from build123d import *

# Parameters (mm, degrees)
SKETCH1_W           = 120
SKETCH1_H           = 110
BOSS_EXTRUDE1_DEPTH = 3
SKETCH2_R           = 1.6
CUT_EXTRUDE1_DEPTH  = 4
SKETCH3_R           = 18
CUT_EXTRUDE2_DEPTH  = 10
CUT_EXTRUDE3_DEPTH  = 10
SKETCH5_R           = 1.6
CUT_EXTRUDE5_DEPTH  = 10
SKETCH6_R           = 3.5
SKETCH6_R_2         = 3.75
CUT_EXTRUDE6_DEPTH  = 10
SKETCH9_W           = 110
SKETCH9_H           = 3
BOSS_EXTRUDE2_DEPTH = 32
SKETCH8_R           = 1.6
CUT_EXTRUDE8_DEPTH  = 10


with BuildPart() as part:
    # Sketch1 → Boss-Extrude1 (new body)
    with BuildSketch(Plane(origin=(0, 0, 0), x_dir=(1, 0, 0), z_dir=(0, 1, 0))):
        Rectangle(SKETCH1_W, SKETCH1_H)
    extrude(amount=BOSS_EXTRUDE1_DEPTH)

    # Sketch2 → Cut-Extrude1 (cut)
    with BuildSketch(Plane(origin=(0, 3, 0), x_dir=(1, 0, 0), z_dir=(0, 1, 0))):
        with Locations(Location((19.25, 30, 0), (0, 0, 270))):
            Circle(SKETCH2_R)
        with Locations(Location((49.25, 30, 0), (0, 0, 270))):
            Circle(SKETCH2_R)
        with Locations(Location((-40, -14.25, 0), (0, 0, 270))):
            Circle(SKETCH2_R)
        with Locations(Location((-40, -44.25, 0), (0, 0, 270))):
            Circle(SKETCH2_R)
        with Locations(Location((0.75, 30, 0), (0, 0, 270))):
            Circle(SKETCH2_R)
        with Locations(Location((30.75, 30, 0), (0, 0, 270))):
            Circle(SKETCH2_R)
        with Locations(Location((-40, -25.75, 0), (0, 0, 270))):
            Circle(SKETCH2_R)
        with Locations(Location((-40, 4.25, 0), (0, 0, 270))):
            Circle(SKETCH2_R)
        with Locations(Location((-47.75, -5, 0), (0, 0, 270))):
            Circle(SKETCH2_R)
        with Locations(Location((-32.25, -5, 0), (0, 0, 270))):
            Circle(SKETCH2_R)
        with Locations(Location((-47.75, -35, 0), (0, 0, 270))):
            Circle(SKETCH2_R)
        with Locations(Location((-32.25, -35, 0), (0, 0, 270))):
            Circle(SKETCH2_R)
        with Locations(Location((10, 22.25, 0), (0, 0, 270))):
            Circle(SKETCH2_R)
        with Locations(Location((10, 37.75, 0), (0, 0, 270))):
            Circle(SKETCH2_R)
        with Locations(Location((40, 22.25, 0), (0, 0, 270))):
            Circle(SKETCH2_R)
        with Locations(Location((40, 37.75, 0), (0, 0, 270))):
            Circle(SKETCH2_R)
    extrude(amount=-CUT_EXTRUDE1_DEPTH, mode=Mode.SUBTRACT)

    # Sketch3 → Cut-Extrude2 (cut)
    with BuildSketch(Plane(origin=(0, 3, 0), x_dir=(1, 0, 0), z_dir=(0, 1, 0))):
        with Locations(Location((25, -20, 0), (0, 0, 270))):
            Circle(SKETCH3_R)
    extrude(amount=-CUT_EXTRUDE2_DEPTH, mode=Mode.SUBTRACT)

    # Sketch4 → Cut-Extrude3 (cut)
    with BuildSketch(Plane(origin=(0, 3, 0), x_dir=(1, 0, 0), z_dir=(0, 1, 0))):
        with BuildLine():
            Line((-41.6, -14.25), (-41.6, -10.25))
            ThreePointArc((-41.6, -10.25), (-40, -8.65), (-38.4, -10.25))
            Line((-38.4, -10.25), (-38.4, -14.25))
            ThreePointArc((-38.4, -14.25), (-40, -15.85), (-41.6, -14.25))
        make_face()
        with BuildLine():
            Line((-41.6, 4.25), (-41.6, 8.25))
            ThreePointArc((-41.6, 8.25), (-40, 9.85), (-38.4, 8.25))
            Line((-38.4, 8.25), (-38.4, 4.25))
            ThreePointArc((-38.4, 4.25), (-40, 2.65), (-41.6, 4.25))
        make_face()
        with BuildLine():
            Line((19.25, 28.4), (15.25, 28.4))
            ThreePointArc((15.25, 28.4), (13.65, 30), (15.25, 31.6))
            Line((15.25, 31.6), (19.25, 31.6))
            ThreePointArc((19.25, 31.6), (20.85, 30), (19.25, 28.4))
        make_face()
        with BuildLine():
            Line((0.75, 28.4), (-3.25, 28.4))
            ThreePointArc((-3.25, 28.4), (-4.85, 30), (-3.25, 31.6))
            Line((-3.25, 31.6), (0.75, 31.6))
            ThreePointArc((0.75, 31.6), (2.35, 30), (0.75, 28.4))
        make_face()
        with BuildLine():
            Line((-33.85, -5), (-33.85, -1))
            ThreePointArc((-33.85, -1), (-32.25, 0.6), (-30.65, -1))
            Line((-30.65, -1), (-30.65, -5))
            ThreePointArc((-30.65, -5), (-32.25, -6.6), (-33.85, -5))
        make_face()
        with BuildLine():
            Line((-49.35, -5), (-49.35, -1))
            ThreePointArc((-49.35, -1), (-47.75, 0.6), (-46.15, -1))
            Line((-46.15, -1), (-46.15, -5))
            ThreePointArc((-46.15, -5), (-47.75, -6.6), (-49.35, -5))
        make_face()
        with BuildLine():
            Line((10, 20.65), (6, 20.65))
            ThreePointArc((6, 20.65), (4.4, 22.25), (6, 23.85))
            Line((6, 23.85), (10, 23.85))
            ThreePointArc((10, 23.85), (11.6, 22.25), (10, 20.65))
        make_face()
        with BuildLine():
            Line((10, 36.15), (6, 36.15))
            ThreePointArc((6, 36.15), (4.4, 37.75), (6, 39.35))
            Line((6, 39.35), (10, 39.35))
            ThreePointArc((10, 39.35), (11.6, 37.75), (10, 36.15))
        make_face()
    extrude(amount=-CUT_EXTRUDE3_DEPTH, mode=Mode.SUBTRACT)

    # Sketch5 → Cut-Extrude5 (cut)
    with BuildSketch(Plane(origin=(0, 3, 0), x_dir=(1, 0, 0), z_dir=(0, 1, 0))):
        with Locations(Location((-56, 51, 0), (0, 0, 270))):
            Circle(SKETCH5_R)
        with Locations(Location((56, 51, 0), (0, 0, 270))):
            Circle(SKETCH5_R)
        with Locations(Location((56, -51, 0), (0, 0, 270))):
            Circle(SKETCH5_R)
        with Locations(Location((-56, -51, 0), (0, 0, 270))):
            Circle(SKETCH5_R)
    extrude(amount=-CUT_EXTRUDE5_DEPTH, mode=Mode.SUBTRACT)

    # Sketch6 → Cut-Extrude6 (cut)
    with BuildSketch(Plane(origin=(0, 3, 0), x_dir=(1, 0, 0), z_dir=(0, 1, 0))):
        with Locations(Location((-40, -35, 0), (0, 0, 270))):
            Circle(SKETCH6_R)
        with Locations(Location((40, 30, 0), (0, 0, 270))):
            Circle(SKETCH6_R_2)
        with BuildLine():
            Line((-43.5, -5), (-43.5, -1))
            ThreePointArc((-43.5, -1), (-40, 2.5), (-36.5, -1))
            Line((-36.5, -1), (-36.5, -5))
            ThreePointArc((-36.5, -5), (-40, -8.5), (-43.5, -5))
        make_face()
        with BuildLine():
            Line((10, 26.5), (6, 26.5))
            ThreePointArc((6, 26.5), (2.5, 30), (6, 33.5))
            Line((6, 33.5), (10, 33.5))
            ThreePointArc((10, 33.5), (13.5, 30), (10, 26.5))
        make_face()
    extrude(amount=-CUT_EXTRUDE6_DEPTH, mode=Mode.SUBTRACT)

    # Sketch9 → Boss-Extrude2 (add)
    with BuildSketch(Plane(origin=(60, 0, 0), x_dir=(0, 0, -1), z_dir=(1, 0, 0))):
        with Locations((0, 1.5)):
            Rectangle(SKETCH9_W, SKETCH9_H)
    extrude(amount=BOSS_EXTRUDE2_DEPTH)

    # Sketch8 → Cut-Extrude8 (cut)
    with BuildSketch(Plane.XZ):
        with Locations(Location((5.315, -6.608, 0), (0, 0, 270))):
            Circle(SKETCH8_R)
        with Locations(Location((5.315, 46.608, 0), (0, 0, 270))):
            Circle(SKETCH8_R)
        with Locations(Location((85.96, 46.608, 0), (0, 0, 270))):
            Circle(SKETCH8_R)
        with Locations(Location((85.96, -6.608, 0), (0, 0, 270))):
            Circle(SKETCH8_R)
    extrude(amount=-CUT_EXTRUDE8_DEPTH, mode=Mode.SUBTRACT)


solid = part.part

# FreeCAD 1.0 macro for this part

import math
import FreeCAD as App
import Part
import Sketcher

V = App.Vector

doc = App.newDocument("Part")
params = doc.addObject("Spreadsheet::Sheet", "Params")
for row, (alias, value) in enumerate([
    ("sketch1_width", "120 mm"),
    ("sketch1_height", "110 mm"),
    ("pad1_length", "3 mm"),
    ("sketch2_diameter", "3.2 mm"),
    ("pocket1_length", "4 mm"),
    ("sketch3_diameter", "36 mm"),
    ("pocket2_length", "10 mm"),
    ("sketch4_radius", "1.6 mm"),
    ("sketch4_width", "4 mm"),
    ("pocket3_length", "10 mm"),
    ("sketch5_diameter", "3.2 mm"),
    ("pocket4_length", "10 mm"),
    ("sketch6_diameter", "7 mm"),
    ("sketch6_diameter2", "7.5 mm"),
    ("sketch6_width", "4 mm"),
    ("pocket5_length", "10 mm"),
    ("sketch7_width", "3 mm"),
    ("sketch7_height", "110 mm"),
    ("pad2_length", "32 mm"),
    ("sketch8_diameter", "3.2 mm"),
    ("pocket6_length", "10 mm"),
], start=1):
    params.set(f"A{row}", alias)
    params.set(f"B{row}", "=" + value)
    params.setAlias(f"B{row}", alias)

body = doc.addObject("PartDesign::Body", "Body")

# Sketch on XZ plane
sketch1 = body.newObject("Sketcher::SketchObject", "Sketch")
sketch1.AttachmentSupport = (doc.getObject("XZ_Plane"), [""])
sketch1.MapMode = "FlatFace"
sketch1.addGeometry([
    Part.LineSegment(V(-60, -55, 0), V(-60, 55, 0)),
    Part.LineSegment(V(-60, 55, 0), V(60, 55, 0)),
    Part.LineSegment(V(60, 55, 0), V(60, -55, 0)),
    Part.LineSegment(V(60, -55, 0), V(-60, -55, 0)),
], False)
sketch1.addConstraint([
    Sketcher.Constraint("Coincident", 0, 2, 1, 1),
    Sketcher.Constraint("Coincident", 1, 2, 2, 1),
    Sketcher.Constraint("Coincident", 2, 2, 3, 1),
    Sketcher.Constraint("Coincident", 3, 2, 0, 1),
    Sketcher.Constraint("Vertical", 0),
    Sketcher.Constraint("Horizontal", 1),
    Sketcher.Constraint("Vertical", 2),
    Sketcher.Constraint("Horizontal", 3),
    Sketcher.Constraint("Symmetric", 0, 2, 2, 2, -1, 1),
    Sketcher.Constraint("DistanceX", 1, 1, 1, 2, 120.0),
    Sketcher.Constraint("DistanceY", 0, 1, 0, 2, 110.0),
])
sketch1.setExpression("Constraints[9]", "Params.sketch1_width")
sketch1.setExpression("Constraints[10]", "Params.sketch1_height")
pad1 = body.newObject("PartDesign::Pad", "Pad")
pad1.Profile = sketch1
pad1.setExpression("Length", "Params.pad1_length")
pad1.Reversed = True

# Sketch on XZ plane
sketch2 = body.newObject("Sketcher::SketchObject", "Sketch001")
sketch2.AttachmentSupport = (doc.getObject("XZ_Plane"), [""])
sketch2.MapMode = "FlatFace"
sketch2.AttachmentOffset = App.Placement(V(0, 0, -3), App.Rotation())
sketch2.addGeometry([
    Part.Circle(V(19.2, -30, 0), V(0, 0, 1), 1.6),  # 0
    Part.Circle(V(49.2, -30, 0), V(0, 0, 1), 1.6),  # 1
    Part.Circle(V(-40, 14.2, 0), V(0, 0, 1), 1.6),  # 2
    Part.Circle(V(-40, 44.2, 0), V(0, 0, 1), 1.6),  # 3
    Part.Circle(V(0.8, -30, 0), V(0, 0, 1), 1.6),  # 4
    Part.Circle(V(30.8, -30, 0), V(0, 0, 1), 1.6),  # 5
    Part.Circle(V(-40, 25.8, 0), V(0, 0, 1), 1.6),  # 6
    Part.Circle(V(-40, -4.2, 0), V(0, 0, 1), 1.6),  # 7
    Part.Circle(V(-47.8, 5, 0), V(0, 0, 1), 1.6),  # 8
    Part.Circle(V(-32.2, 5, 0), V(0, 0, 1), 1.6),  # 9
    Part.Circle(V(-47.8, 35, 0), V(0, 0, 1), 1.6),  # 10
    Part.Circle(V(-32.2, 35, 0), V(0, 0, 1), 1.6),  # 11
    Part.Circle(V(10, -22.2, 0), V(0, 0, 1), 1.6),  # 12
    Part.Circle(V(10, -37.8, 0), V(0, 0, 1), 1.6),  # 13
    Part.Circle(V(40, -22.2, 0), V(0, 0, 1), 1.6),  # 14
    Part.Circle(V(40, -37.8, 0), V(0, 0, 1), 1.6),  # 15
], False)
sketch2.addConstraint([
    Sketcher.Constraint("Equal", 0, 1),
    Sketcher.Constraint("Equal", 1, 2),
    Sketcher.Constraint("Equal", 2, 3),
    Sketcher.Constraint("Equal", 3, 4),
    Sketcher.Constraint("Equal", 4, 5),
    Sketcher.Constraint("Equal", 5, 6),
    Sketcher.Constraint("Equal", 6, 7),
    Sketcher.Constraint("Equal", 7, 8),
    Sketcher.Constraint("Equal", 8, 9),
    Sketcher.Constraint("Equal", 9, 10),
    Sketcher.Constraint("Equal", 10, 11),
    Sketcher.Constraint("Equal", 11, 12),
    Sketcher.Constraint("Equal", 12, 13),
    Sketcher.Constraint("Equal", 13, 14),
    Sketcher.Constraint("Equal", 14, 15),
    Sketcher.Constraint("Horizontal", 0, 3, 1, 3),
    Sketcher.Constraint("Horizontal", 1, 3, 4, 3),
    Sketcher.Constraint("Horizontal", 4, 3, 5, 3),
    Sketcher.Constraint("Horizontal", 8, 3, 9, 3),
    Sketcher.Constraint("Horizontal", 10, 3, 11, 3),
    Sketcher.Constraint("Horizontal", 12, 3, 14, 3),
    Sketcher.Constraint("Horizontal", 13, 3, 15, 3),
    Sketcher.Constraint("Vertical", 2, 3, 3, 3),
    Sketcher.Constraint("Vertical", 3, 3, 6, 3),
    Sketcher.Constraint("Vertical", 6, 3, 7, 3),
    Sketcher.Constraint("Vertical", 8, 3, 10, 3),
    Sketcher.Constraint("Vertical", 9, 3, 11, 3),
    Sketcher.Constraint("Vertical", 12, 3, 13, 3),
    Sketcher.Constraint("Vertical", 14, 3, 15, 3),
    Sketcher.Constraint("Diameter", 0, 3.2),
    Sketcher.Constraint("DistanceY", 0, 3, -1, 1, 30.0),
    Sketcher.Constraint("DistanceX", 2, 3, -1, 1, 40.0),
    Sketcher.Constraint("DistanceY", -1, 1, 8, 3, 5.0),
    Sketcher.Constraint("DistanceY", -1, 1, 10, 3, 35.0),
    Sketcher.Constraint("DistanceX", -1, 1, 12, 3, 10.0),
    Sketcher.Constraint("DistanceX", -1, 1, 14, 3, 40.0),
    Sketcher.Constraint("DistanceX", 0, 3, 1, 3, 30.0),
    Sketcher.Constraint("DistanceY", 2, 3, 3, 3, 30.0),
    Sketcher.Constraint("DistanceX", 4, 3, 5, 3, 30.0),
    Sketcher.Constraint("DistanceY", 7, 3, 6, 3, 30.0),
    Sketcher.Constraint("DistanceX", 4, 3, 0, 3, 18.5),
    Sketcher.Constraint("DistanceY", 2, 3, 6, 3, 11.5),
    Sketcher.Constraint("DistanceX", 8, 3, 4, 3, 48.5),
    Sketcher.Constraint("DistanceX", 8, 3, 9, 3, 15.5),
    Sketcher.Constraint("DistanceY", 13, 3, 12, 3, 15.5),
    Sketcher.Constraint("DistanceX", -1, 1, 0, 3, 19.25),
    Sketcher.Constraint("DistanceY", -1, 1, 2, 3, 14.25),
    Sketcher.Constraint("DistanceY", 12, 3, -1, 1, 22.25),
])
sketch2.setExpression("Constraints[29]", "Params.sketch2_diameter")
pocket1 = body.newObject("PartDesign::Pocket", "Pocket")
pocket1.Profile = sketch2
pocket1.setExpression("Length", "Params.pocket1_length")
pocket1.Reversed = True

# Sketch on XZ plane
sketch3 = body.newObject("Sketcher::SketchObject", "Sketch002")
sketch3.AttachmentSupport = (doc.getObject("XZ_Plane"), [""])
sketch3.MapMode = "FlatFace"
sketch3.AttachmentOffset = App.Placement(V(0, 0, -3), App.Rotation())
sketch3.addGeometry(Part.Circle(V(25, 20, 0), V(0, 0, 1), 18), False)
sketch3.addConstraint([
    Sketcher.Constraint("Diameter", 0, 36.0),
    Sketcher.Constraint("DistanceX", -1, 1, 0, 3, 25.0),
    Sketcher.Constraint("DistanceY", -1, 1, 0, 3, 20.0),
])
sketch3.setExpression("Constraints[0]", "Params.sketch3_diameter")
pocket2 = body.newObject("PartDesign::Pocket", "Pocket001")
pocket2.Profile = sketch3
pocket2.setExpression("Length", "Params.pocket2_length")
pocket2.Reversed = True

# Sketch on XZ plane
sketch4 = body.newObject("Sketcher::SketchObject", "Sketch003")
sketch4.AttachmentSupport = (doc.getObject("XZ_Plane"), [""])
sketch4.MapMode = "FlatFace"
sketch4.AttachmentOffset = App.Placement(V(0, 0, -3), App.Rotation())
sketch4.addGeometry([
    Part.LineSegment(V(-41.6, 10.2, 0), V(-41.6, 14.2, 0)),  # 0
    Part.ArcOfCircle(Part.Circle(V(-40, 14.2, 0), V(0, 0, 1), 1.6), math.radians(0), math.radians(180)),  # 1
    Part.LineSegment(V(-38.4, 14.2, 0), V(-38.4, 10.2, 0)),  # 2
    Part.ArcOfCircle(Part.Circle(V(-40, 10.2, 0), V(0, 0, 1), 1.6), math.radians(180), math.radians(360)),  # 3
    Part.LineSegment(V(-41.6, -8.2, 0), V(-41.6, -4.2, 0)),  # 4
    Part.ArcOfCircle(Part.Circle(V(-40, -4.2, 0), V(0, 0, 1), 1.6), math.radians(0), math.radians(180)),  # 5
    Part.LineSegment(V(-38.4, -4.2, 0), V(-38.4, -8.2, 0)),  # 6
    Part.ArcOfCircle(Part.Circle(V(-40, -8.2, 0), V(0, 0, 1), 1.6), math.radians(180), math.radians(360)),  # 7
    Part.LineSegment(V(15.2, -28.4, 0), V(19.2, -28.4, 0)),  # 8
    Part.ArcOfCircle(Part.Circle(V(19.2, -30, 0), V(0, 0, 1), 1.6), math.radians(-90), math.radians(90)),  # 9
    Part.LineSegment(V(19.2, -31.6, 0), V(15.2, -31.6, 0)),  # 10
    Part.ArcOfCircle(Part.Circle(V(15.2, -30, 0), V(0, 0, 1), 1.6), math.radians(90), math.radians(270)),  # 11
    Part.LineSegment(V(-3.2, -28.4, 0), V(0.8, -28.4, 0)),  # 12
    Part.ArcOfCircle(Part.Circle(V(0.8, -30, 0), V(0, 0, 1), 1.6), math.radians(-90), math.radians(90)),  # 13
    Part.LineSegment(V(0.8, -31.6, 0), V(-3.2, -31.6, 0)),  # 14
    Part.ArcOfCircle(Part.Circle(V(-3.2, -30, 0), V(0, 0, 1), 1.6), math.radians(90), math.radians(270)),  # 15
    Part.LineSegment(V(-33.9, 1, 0), V(-33.9, 5, 0)),  # 16
    Part.ArcOfCircle(Part.Circle(V(-32.2, 5, 0), V(0, 0, 1), 1.6), math.radians(0), math.radians(180)),  # 17
    Part.LineSegment(V(-30.6, 5, 0), V(-30.6, 1, 0)),  # 18
    Part.ArcOfCircle(Part.Circle(V(-32.2, 1, 0), V(0, 0, 1), 1.6), math.radians(180), math.radians(360)),  # 19
    Part.LineSegment(V(-49.4, 1, 0), V(-49.4, 5, 0)),  # 20
    Part.ArcOfCircle(Part.Circle(V(-47.8, 5, 0), V(0, 0, 1), 1.6), math.radians(0), math.radians(180)),  # 21
    Part.LineSegment(V(-46.1, 5, 0), V(-46.1, 1, 0)),  # 22
    Part.ArcOfCircle(Part.Circle(V(-47.8, 1, 0), V(0, 0, 1), 1.6), math.radians(180), math.radians(360)),  # 23
    Part.LineSegment(V(6, -20.6, 0), V(10, -20.6, 0)),  # 24
    Part.ArcOfCircle(Part.Circle(V(10, -22.2, 0), V(0, 0, 1), 1.6), math.radians(-90), math.radians(90)),  # 25
    Part.LineSegment(V(10, -23.9, 0), V(6, -23.9, 0)),  # 26
    Part.ArcOfCircle(Part.Circle(V(6, -22.2, 0), V(0, 0, 1), 1.6), math.radians(90), math.radians(270)),  # 27
    Part.LineSegment(V(6, -36.1, 0), V(10, -36.1, 0)),  # 28
    Part.ArcOfCircle(Part.Circle(V(10, -37.8, 0), V(0, 0, 1), 1.6), math.radians(-90), math.radians(90)),  # 29
    Part.LineSegment(V(10, -39.4, 0), V(6, -39.4, 0)),  # 30
    Part.ArcOfCircle(Part.Circle(V(6, -37.8, 0), V(0, 0, 1), 1.6), math.radians(90), math.radians(270)),  # 31
], False)
sketch4.addConstraint([
    Sketcher.Constraint("Tangent", 0, 2, 1, 2),
    Sketcher.Constraint("Tangent", 1, 1, 2, 1),
    Sketcher.Constraint("Tangent", 2, 2, 3, 2),
    Sketcher.Constraint("Tangent", 3, 1, 0, 1),
    Sketcher.Constraint("Tangent", 4, 2, 5, 2),
    Sketcher.Constraint("Tangent", 5, 1, 6, 1),
    Sketcher.Constraint("Tangent", 6, 2, 7, 2),
    Sketcher.Constraint("Tangent", 7, 1, 4, 1),
    Sketcher.Constraint("Tangent", 8, 2, 9, 2),
    Sketcher.Constraint("Tangent", 9, 1, 10, 1),
    Sketcher.Constraint("Tangent", 10, 2, 11, 2),
    Sketcher.Constraint("Tangent", 11, 1, 8, 1),
    Sketcher.Constraint("Tangent", 12, 2, 13, 2),
    Sketcher.Constraint("Tangent", 13, 1, 14, 1),
    Sketcher.Constraint("Tangent", 14, 2, 15, 2),
    Sketcher.Constraint("Tangent", 15, 1, 12, 1),
    Sketcher.Constraint("Tangent", 16, 2, 17, 2),
    Sketcher.Constraint("Tangent", 17, 1, 18, 1),
    Sketcher.Constraint("Tangent", 18, 2, 19, 2),
    Sketcher.Constraint("Tangent", 19, 1, 16, 1),
    Sketcher.Constraint("Tangent", 20, 2, 21, 2),
    Sketcher.Constraint("Tangent", 21, 1, 22, 1),
    Sketcher.Constraint("Tangent", 22, 2, 23, 2),
    Sketcher.Constraint("Tangent", 23, 1, 20, 1),
    Sketcher.Constraint("Tangent", 24, 2, 25, 2),
    Sketcher.Constraint("Tangent", 25, 1, 26, 1),
    Sketcher.Constraint("Tangent", 26, 2, 27, 2),
    Sketcher.Constraint("Tangent", 27, 1, 24, 1),
    Sketcher.Constraint("Tangent", 28, 2, 29, 2),
    Sketcher.Constraint("Tangent", 29, 1, 30, 1),
    Sketcher.Constraint("Tangent", 30, 2, 31, 2),
    Sketcher.Constraint("Tangent", 31, 1, 28, 1),
    Sketcher.Constraint("Vertical", 0),
    Sketcher.Constraint("Vertical", 2),
    Sketcher.Constraint("Vertical", 4),
    Sketcher.Constraint("Vertical", 6),
    Sketcher.Constraint("Horizontal", 8),
    Sketcher.Constraint("Horizontal", 10),
    Sketcher.Constraint("Horizontal", 12),
    Sketcher.Constraint("Horizontal", 14),
    Sketcher.Constraint("Vertical", 16),
    Sketcher.Constraint("Vertical", 18),
    Sketcher.Constraint("Vertical", 20),
    Sketcher.Constraint("Vertical", 22),
    Sketcher.Constraint("Horizontal", 24),
    Sketcher.Constraint("Horizontal", 26),
    Sketcher.Constraint("Horizontal", 28),
    Sketcher.Constraint("Horizontal", 30),
    Sketcher.Constraint("Equal", 3, 5),
    Sketcher.Constraint("Equal", 7, 9),
    Sketcher.Constraint("Equal", 11, 13),
    Sketcher.Constraint("Equal", 15, 17),
    Sketcher.Constraint("Equal", 19, 21),
    Sketcher.Constraint("Equal", 23, 25),
    Sketcher.Constraint("Equal", 27, 29),
    Sketcher.Constraint("Horizontal", 11, 3, 13, 3),
    Sketcher.Constraint("Horizontal", 17, 3, 21, 3),
    Sketcher.Constraint("Horizontal", 19, 3, 23, 3),
    Sketcher.Constraint("Vertical", 3, 3, 5, 3),
    Sketcher.Constraint("Vertical", 25, 3, 29, 3),
    Sketcher.Constraint("Vertical", 27, 3, 31, 3),
    Sketcher.Constraint("Equal", 10, 12),
    Sketcher.Constraint("Equal", 14, 24),
    Sketcher.Constraint("Equal", 30, 0),
    Sketcher.Constraint("Equal", 2, 4),
    Sketcher.Constraint("Equal", 6, 16),
    Sketcher.Constraint("Radius", 1, 1.6),
    Sketcher.Constraint("DistanceX", 8, 1, 8, 2, 4.0),
    Sketcher.Constraint("DistanceX", 1, 3, -1, 1, 40.0),
    Sketcher.Constraint("DistanceY", 9, 3, -1, 1, 30.0),
    Sketcher.Constraint("DistanceY", -1, 1, 17, 3, 5.0),
    Sketcher.Constraint("DistanceX", -1, 1, 25, 3, 10.0),
    Sketcher.Constraint("DistanceX", 17, 3, 15, 3, 29.0),
    Sketcher.Constraint("DistanceY", 5, 3, 3, 3, 14.5),
    Sketcher.Constraint("DistanceX", 13, 3, 11, 3, 14.5),
    Sketcher.Constraint("DistanceX", 21, 3, 17, 3, 15.5),
    Sketcher.Constraint("DistanceY", 29, 3, 25, 3, 15.5),
    Sketcher.Constraint("DistanceY", -1, 1, 1, 3, 14.25),
    Sketcher.Constraint("DistanceX", -1, 1, 9, 3, 19.25),
    Sketcher.Constraint("DistanceY", 25, 3, -1, 1, 22.25),
])
sketch4.setExpression("Constraints[66]", "Params.sketch4_radius")
sketch4.setExpression("Constraints[67]", "Params.sketch4_width")
pocket3 = body.newObject("PartDesign::Pocket", "Pocket002")
pocket3.Profile = sketch4
pocket3.setExpression("Length", "Params.pocket3_length")
pocket3.Reversed = True

# Sketch on XZ plane
sketch5 = body.newObject("Sketcher::SketchObject", "Sketch004")
sketch5.AttachmentSupport = (doc.getObject("XZ_Plane"), [""])
sketch5.MapMode = "FlatFace"
sketch5.AttachmentOffset = App.Placement(V(0, 0, -3), App.Rotation())
sketch5.addGeometry([
    Part.Circle(V(-56, -51, 0), V(0, 0, 1), 1.6),
    Part.Circle(V(56, -51, 0), V(0, 0, 1), 1.6),
    Part.Circle(V(56, 51, 0), V(0, 0, 1), 1.6),
    Part.Circle(V(-56, 51, 0), V(0, 0, 1), 1.6),
], False)
sketch5.addConstraint([
    Sketcher.Constraint("Equal", 0, 1),
    Sketcher.Constraint("Equal", 1, 2),
    Sketcher.Constraint("Equal", 2, 3),
    Sketcher.Constraint("Symmetric", 0, 3, 2, 3, -1, 1),
    Sketcher.Constraint("Symmetric", 1, 3, 3, 3, -1, 1),
    Sketcher.Constraint("Symmetric", 0, 3, 1, 3, -2),
    Sketcher.Constraint("Diameter", 0, 3.2),
    Sketcher.Constraint("DistanceX", 0, 3, -1, 1, 56.0),
    Sketcher.Constraint("DistanceY", 0, 3, -1, 1, 51.0),
])
sketch5.setExpression("Constraints[6]", "Params.sketch5_diameter")
pocket4 = body.newObject("PartDesign::Pocket", "Pocket003")
pocket4.Profile = sketch5
pocket4.setExpression("Length", "Params.pocket4_length")
pocket4.Reversed = True

# Sketch on XZ plane
sketch6 = body.newObject("Sketcher::SketchObject", "Sketch005")
sketch6.AttachmentSupport = (doc.getObject("XZ_Plane"), [""])
sketch6.MapMode = "FlatFace"
sketch6.AttachmentOffset = App.Placement(V(0, 0, -3), App.Rotation())
sketch6.addGeometry([
    Part.Circle(V(-40, 35, 0), V(0, 0, 1), 3.5),  # 0
    Part.Circle(V(40, -30, 0), V(0, 0, 1), 3.8),  # 1
    Part.LineSegment(V(-43.5, 1, 0), V(-43.5, 5, 0)),  # 2
    Part.ArcOfCircle(Part.Circle(V(-40, 5, 0), V(0, 0, 1), 3.5), math.radians(0), math.radians(180)),  # 3
    Part.LineSegment(V(-36.5, 5, 0), V(-36.5, 1, 0)),  # 4
    Part.ArcOfCircle(Part.Circle(V(-40, 1, 0), V(0, 0, 1), 3.5), math.radians(180), math.radians(360)),  # 5
    Part.LineSegment(V(6, -26.5, 0), V(10, -26.5, 0)),  # 6
    Part.ArcOfCircle(Part.Circle(V(10, -30, 0), V(0, 0, 1), 3.5), math.radians(-90), math.radians(90)),  # 7
    Part.LineSegment(V(10, -33.5, 0), V(6, -33.5, 0)),  # 8
    Part.ArcOfCircle(Part.Circle(V(6, -30, 0), V(0, 0, 1), 3.5), math.radians(90), math.radians(270)),  # 9
], False)
sketch6.addConstraint([
    Sketcher.Constraint("Tangent", 2, 2, 3, 2),
    Sketcher.Constraint("Tangent", 3, 1, 4, 1),
    Sketcher.Constraint("Tangent", 4, 2, 5, 2),
    Sketcher.Constraint("Tangent", 5, 1, 2, 1),
    Sketcher.Constraint("Tangent", 6, 2, 7, 2),
    Sketcher.Constraint("Tangent", 7, 1, 8, 1),
    Sketcher.Constraint("Tangent", 8, 2, 9, 2),
    Sketcher.Constraint("Tangent", 9, 1, 6, 1),
    Sketcher.Constraint("Vertical", 2),
    Sketcher.Constraint("Vertical", 4),
    Sketcher.Constraint("Horizontal", 6),
    Sketcher.Constraint("Horizontal", 8),
    Sketcher.Constraint("Equal", 0, 3),
    Sketcher.Constraint("Equal", 5, 7),
    Sketcher.Constraint("Horizontal", 1, 3, 7, 3),
    Sketcher.Constraint("Vertical", 0, 3, 3, 3),
    Sketcher.Constraint("Equal", 8, 2),
    Sketcher.Constraint("Diameter", 0, 7.0),
    Sketcher.Constraint("Diameter", 1, 7.5),
    Sketcher.Constraint("DistanceX", 6, 1, 6, 2, 4.0),
    Sketcher.Constraint("DistanceX", 0, 3, -1, 1, 40.0),
    Sketcher.Constraint("DistanceY", -1, 1, 0, 3, 35.0),
    Sketcher.Constraint("DistanceX", -1, 1, 1, 3, 40.0),
    Sketcher.Constraint("DistanceY", 1, 3, -1, 1, 30.0),
    Sketcher.Constraint("DistanceY", -1, 1, 3, 3, 5.0),
    Sketcher.Constraint("DistanceX", -1, 1, 7, 3, 10.0),
])
sketch6.setExpression("Constraints[17]", "Params.sketch6_diameter")
sketch6.setExpression("Constraints[18]", "Params.sketch6_diameter2")
sketch6.setExpression("Constraints[19]", "Params.sketch6_width")
pocket5 = body.newObject("PartDesign::Pocket", "Pocket004")
pocket5.Profile = sketch6
pocket5.setExpression("Length", "Params.pocket5_length")
pocket5.Reversed = True

# Sketch on YZ plane
sketch7 = body.newObject("Sketcher::SketchObject", "Sketch006")
sketch7.AttachmentSupport = (doc.getObject("YZ_Plane"), [""])
sketch7.MapMode = "FlatFace"
sketch7.AttachmentOffset = App.Placement(V(0, 0, 60), App.Rotation())
sketch7.addGeometry([
    Part.LineSegment(V(3, 55, 0), V(0, 55, 0)),
    Part.LineSegment(V(0, 55, 0), V(0, -55, 0)),
    Part.LineSegment(V(0, -55, 0), V(3, -55, 0)),
    Part.LineSegment(V(3, -55, 0), V(3, 55, 0)),
], False)
sketch7.addConstraint([
    Sketcher.Constraint("Coincident", 0, 2, 1, 1),
    Sketcher.Constraint("Coincident", 1, 2, 2, 1),
    Sketcher.Constraint("Coincident", 2, 2, 3, 1),
    Sketcher.Constraint("Coincident", 3, 2, 0, 1),
    Sketcher.Constraint("Horizontal", 0),
    Sketcher.Constraint("Vertical", 1),
    Sketcher.Constraint("Horizontal", 2),
    Sketcher.Constraint("Vertical", 3),
    Sketcher.Constraint("Symmetric", 0, 2, 1, 2, -1, 1),
    Sketcher.Constraint("DistanceX", 0, 2, 0, 1, 3.0),
    Sketcher.Constraint("DistanceY", 1, 2, 1, 1, 110.0),
])
sketch7.setExpression("Constraints[9]", "Params.sketch7_width")
sketch7.setExpression("Constraints[10]", "Params.sketch7_height")
pad2 = body.newObject("PartDesign::Pad", "Pad001")
pad2.Profile = sketch7
pad2.setExpression("Length", "Params.pad2_length")

# Sketch on XZ plane
sketch8 = body.newObject("Sketcher::SketchObject", "Sketch007")
sketch8.AttachmentSupport = (doc.getObject("XZ_Plane"), [""])
sketch8.MapMode = "FlatFace"
sketch8.addGeometry([
    Part.Circle(V(5.3, -6.6, 0), V(0, 0, 1), 1.6),
    Part.Circle(V(5.3, 46.6, 0), V(0, 0, 1), 1.6),
    Part.Circle(V(86, 46.6, 0), V(0, 0, 1), 1.6),
    Part.Circle(V(86, -6.6, 0), V(0, 0, 1), 1.6),
], False)
sketch8.addConstraint([
    Sketcher.Constraint("Equal", 0, 1),
    Sketcher.Constraint("Equal", 1, 2),
    Sketcher.Constraint("Equal", 2, 3),
    Sketcher.Constraint("Horizontal", 1, 3, 2, 3),
    Sketcher.Constraint("Horizontal", 0, 3, 3, 3),
    Sketcher.Constraint("Vertical", 0, 3, 1, 3),
    Sketcher.Constraint("Vertical", 2, 3, 3, 3),
    Sketcher.Constraint("Diameter", 0, 3.2),
    Sketcher.Constraint("DistanceX", -1, 1, 2, 3, 85.96),
    Sketcher.Constraint("DistanceX", -1, 1, 0, 3, 5.315),
    Sketcher.Constraint("DistanceY", 0, 3, -1, 1, 6.608),
    Sketcher.Constraint("DistanceY", -1, 1, 1, 3, 46.608),
])
sketch8.setExpression("Constraints[7]", "Params.sketch8_diameter")
pocket6 = body.newObject("PartDesign::Pocket", "Pocket005")
pocket6.Profile = sketch8
pocket6.setExpression("Length", "Params.pocket6_length")

doc.recompute()
